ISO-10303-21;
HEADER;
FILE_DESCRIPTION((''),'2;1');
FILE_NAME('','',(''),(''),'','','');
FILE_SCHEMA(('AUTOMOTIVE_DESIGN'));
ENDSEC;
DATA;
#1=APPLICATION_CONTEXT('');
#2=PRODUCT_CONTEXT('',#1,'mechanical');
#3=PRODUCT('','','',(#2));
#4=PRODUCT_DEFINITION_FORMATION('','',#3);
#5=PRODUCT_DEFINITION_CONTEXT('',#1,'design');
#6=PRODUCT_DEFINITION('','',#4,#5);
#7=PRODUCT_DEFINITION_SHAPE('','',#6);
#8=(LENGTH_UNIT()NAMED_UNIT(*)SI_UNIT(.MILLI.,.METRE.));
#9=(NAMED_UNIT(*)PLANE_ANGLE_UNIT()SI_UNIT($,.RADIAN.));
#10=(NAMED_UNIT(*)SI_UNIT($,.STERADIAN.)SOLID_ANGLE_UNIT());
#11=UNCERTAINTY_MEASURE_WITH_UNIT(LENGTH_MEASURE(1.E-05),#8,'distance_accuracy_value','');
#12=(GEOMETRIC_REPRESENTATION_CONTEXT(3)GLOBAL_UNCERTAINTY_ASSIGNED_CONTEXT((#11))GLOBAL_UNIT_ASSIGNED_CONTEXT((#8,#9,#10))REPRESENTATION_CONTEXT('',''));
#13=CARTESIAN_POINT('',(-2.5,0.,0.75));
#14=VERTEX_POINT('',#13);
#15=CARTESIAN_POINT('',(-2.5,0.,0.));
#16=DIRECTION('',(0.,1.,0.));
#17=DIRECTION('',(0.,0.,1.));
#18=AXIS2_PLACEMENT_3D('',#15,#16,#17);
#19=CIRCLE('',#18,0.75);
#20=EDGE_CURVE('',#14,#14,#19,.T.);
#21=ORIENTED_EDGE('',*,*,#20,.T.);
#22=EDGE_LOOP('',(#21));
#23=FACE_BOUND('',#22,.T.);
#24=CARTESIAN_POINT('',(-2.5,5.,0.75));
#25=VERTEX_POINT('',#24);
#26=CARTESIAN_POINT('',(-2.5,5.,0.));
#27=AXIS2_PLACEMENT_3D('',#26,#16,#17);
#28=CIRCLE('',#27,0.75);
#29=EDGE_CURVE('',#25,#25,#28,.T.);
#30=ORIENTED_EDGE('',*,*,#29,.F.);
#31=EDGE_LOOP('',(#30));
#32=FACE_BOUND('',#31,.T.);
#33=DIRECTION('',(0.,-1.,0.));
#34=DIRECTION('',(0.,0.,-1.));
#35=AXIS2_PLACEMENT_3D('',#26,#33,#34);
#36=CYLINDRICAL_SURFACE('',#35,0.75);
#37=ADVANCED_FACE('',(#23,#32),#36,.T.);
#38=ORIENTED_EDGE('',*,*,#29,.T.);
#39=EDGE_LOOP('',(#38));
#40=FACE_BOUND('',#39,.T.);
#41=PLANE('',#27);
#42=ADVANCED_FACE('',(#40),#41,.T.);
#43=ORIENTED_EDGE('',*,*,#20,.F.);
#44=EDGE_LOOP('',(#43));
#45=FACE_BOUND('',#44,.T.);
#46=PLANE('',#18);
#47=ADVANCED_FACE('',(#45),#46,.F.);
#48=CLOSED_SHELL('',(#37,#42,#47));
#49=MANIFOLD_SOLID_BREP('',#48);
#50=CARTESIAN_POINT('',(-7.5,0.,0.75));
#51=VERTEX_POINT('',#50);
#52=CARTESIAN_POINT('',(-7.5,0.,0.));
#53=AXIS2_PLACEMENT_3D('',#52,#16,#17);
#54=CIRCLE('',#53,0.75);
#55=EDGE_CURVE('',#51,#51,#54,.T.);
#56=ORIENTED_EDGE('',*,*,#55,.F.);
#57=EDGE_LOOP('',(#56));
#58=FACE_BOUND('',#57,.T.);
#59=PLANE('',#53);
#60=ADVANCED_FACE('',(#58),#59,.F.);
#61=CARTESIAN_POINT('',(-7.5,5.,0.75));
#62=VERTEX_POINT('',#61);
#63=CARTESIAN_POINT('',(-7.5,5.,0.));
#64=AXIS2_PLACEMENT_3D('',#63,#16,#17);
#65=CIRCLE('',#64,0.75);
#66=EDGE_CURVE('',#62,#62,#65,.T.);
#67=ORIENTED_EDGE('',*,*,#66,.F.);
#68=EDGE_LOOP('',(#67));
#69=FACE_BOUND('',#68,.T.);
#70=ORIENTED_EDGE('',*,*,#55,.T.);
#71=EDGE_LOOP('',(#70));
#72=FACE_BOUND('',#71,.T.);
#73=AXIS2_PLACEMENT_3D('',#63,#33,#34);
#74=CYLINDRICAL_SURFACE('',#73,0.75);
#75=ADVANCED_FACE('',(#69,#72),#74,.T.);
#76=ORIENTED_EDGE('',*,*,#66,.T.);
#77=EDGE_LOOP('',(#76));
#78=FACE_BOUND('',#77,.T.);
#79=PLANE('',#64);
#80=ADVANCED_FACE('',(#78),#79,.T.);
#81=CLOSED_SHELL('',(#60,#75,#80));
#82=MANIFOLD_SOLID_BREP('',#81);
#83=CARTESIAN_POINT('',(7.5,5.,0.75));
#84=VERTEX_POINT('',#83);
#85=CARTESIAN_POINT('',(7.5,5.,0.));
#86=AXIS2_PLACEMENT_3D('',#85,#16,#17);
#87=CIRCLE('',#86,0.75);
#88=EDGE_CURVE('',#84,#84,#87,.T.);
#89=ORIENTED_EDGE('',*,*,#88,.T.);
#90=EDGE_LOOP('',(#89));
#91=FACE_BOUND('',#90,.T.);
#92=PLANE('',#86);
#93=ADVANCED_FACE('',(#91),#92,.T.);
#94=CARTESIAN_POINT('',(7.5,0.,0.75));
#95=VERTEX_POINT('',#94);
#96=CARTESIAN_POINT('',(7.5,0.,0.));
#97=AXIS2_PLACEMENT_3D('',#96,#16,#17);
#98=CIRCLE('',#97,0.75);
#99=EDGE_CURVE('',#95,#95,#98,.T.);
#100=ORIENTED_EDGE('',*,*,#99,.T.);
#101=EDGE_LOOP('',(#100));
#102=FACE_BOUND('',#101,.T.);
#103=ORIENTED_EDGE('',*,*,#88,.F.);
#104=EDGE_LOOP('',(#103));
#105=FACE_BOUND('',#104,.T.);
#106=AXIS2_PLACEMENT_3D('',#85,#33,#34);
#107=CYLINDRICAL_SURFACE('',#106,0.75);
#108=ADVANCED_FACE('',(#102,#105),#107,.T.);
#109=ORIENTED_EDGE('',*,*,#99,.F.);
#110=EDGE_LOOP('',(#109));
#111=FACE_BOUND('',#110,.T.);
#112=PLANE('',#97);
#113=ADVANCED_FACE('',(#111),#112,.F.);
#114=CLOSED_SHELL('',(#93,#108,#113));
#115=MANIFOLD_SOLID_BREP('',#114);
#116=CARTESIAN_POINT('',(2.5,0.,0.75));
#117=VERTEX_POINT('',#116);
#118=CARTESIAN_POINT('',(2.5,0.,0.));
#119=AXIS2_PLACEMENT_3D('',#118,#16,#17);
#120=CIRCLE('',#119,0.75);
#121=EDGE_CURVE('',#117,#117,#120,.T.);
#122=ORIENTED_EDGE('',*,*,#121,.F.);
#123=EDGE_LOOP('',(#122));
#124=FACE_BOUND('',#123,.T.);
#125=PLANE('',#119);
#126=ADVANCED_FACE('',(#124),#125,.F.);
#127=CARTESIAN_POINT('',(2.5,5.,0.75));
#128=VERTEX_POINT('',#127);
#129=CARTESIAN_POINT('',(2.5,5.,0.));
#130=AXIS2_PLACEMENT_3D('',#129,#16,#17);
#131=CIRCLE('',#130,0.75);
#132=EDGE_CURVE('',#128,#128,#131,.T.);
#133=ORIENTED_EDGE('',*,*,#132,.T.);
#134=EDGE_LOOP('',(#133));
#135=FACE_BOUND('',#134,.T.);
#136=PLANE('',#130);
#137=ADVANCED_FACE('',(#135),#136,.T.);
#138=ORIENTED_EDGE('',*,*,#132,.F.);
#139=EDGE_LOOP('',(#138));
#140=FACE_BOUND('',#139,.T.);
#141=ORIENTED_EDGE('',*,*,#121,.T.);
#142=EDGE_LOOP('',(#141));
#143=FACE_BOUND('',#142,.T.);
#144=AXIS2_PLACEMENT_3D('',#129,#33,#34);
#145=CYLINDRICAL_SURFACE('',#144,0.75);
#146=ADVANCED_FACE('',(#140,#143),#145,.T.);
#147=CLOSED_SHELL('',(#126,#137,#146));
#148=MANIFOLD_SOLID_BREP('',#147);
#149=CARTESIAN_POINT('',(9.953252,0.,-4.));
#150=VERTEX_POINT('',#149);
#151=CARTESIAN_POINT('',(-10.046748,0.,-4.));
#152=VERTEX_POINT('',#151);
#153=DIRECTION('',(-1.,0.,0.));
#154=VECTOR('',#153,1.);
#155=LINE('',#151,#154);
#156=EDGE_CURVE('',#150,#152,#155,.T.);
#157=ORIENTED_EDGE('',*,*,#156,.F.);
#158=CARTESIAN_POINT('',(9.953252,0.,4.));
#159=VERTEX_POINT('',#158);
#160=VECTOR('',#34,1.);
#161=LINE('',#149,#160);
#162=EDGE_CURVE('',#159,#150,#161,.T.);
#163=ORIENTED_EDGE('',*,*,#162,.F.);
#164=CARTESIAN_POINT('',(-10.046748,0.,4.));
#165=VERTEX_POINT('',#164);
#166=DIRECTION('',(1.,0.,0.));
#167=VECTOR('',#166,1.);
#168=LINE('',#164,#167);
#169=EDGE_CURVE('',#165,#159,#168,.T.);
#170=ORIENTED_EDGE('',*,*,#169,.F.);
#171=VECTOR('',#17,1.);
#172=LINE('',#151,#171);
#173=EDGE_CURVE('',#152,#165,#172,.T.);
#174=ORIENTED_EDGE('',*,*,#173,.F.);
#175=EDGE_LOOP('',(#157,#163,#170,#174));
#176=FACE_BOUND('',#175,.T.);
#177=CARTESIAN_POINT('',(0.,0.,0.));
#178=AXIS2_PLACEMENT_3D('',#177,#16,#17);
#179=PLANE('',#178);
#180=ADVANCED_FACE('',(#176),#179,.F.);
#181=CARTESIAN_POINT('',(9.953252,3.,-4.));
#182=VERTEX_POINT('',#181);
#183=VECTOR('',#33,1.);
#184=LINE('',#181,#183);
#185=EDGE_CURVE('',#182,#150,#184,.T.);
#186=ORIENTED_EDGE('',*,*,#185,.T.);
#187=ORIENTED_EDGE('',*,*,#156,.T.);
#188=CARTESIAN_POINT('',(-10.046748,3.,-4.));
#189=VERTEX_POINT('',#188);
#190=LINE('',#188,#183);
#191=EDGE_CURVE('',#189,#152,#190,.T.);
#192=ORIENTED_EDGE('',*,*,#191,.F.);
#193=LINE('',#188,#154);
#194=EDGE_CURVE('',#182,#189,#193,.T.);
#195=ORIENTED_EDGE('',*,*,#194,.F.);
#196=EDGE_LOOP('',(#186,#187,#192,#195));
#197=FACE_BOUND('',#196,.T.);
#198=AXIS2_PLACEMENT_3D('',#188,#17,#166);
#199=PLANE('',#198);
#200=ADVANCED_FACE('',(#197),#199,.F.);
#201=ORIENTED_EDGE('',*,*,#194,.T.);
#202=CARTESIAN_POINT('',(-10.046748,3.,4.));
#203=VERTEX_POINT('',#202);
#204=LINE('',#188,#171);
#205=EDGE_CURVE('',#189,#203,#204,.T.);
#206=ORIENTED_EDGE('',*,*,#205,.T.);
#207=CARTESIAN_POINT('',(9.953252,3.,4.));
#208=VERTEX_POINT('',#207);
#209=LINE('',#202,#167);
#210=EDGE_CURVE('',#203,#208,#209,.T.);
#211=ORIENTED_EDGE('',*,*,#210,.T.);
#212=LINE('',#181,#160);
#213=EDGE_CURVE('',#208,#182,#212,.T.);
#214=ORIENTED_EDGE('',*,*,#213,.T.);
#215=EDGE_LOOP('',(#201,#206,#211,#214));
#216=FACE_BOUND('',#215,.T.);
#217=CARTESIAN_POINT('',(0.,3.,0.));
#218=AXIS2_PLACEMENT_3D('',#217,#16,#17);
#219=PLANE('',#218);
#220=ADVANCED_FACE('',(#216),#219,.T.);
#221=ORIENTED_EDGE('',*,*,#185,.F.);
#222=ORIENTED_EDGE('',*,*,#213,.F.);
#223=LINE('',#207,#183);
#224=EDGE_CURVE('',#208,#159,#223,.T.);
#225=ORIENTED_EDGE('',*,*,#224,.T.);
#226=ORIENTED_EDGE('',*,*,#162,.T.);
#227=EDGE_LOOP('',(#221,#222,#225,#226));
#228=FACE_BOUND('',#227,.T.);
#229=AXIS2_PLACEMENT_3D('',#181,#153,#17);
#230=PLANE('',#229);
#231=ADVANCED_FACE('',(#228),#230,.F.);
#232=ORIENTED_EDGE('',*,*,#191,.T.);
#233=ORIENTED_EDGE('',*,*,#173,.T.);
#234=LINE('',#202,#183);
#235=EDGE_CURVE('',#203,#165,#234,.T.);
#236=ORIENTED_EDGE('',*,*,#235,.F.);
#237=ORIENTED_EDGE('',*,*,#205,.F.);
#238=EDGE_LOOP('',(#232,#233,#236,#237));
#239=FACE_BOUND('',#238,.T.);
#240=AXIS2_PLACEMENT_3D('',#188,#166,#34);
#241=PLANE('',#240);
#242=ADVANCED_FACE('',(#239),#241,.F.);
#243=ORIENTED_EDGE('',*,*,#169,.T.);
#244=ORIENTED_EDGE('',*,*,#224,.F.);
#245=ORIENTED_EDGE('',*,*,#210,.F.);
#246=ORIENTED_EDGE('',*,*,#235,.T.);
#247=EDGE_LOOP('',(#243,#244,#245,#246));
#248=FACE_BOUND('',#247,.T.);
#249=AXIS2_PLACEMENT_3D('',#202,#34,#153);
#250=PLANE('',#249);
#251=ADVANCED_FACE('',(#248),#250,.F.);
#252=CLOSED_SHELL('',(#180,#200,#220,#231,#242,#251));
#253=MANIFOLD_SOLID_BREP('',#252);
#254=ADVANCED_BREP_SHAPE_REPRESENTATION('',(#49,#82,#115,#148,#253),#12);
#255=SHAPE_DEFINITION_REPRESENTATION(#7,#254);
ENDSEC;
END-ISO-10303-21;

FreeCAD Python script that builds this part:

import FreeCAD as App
import Part
import Sketcher


def add_polygon(sketch, points):
    """Adds a closed chain of lines whose ends are joined by coincident constraints."""
    first, n = sketch.GeometryCount, len(points)
    for a, b in zip(points, points[1:] + points[:1]):
        sketch.addGeometry(Part.LineSegment(App.Vector(*a, 0), App.Vector(*b, 0)), False)
    for i in range(n):
        sketch.addConstraint(Sketcher.Constraint("Coincident", first + i, 2, first + (i + 1) % n, 1))

doc = App.newDocument("Part")
params = doc.addObject("Spreadsheet::Sheet", "Params")
for row, (alias, value) in enumerate([
    ("sketch1_width", "20 mm"),
    ("sketch1_height", "8 mm"),
    ("pad1_length", "3 mm"),
    ("sketch2_diameter", "1.5 mm"),
    ("pad2_length", "5 mm"),
    ("sketch3_diameter", "1.5 mm"),
    ("pad3_length", "5 mm"),
    ("sketch4_diameter", "1.5 mm"),
    ("pad4_length", "5 mm"),
    ("sketch5_diameter", "1.5 mm"),
    ("pad5_length", "5 mm"),
], start=1):
    params.set(f"A{row}", alias)
    params.set(f"B{row}", "=" + value)
    params.setAlias(f"B{row}", alias)

body = doc.addObject("PartDesign::Body", "Body")

# Sketch on XZ plane
sketch1 = doc.addObject("Sketcher::SketchObject", "Sketch")
body.addObject(sketch1)
sketch1.AttachmentSupport = (doc.XZ_Plane, [""])
sketch1.MapMode = "FlatFace"
add_polygon(sketch1, [(-10.046748, -4), (-10.046748, 4), (9.953252, 4), (9.953252, -4)])  # lines 0-3
sketch1.addConstraint(Sketcher.Constraint("Vertical", 0))
sketch1.addConstraint(Sketcher.Constraint("Horizontal", 1))
sketch1.addConstraint(Sketcher.Constraint("Vertical", 2))
sketch1.addConstraint(Sketcher.Constraint("Horizontal", 3))
sketch1.addConstraint(Sketcher.Constraint("DistanceX", 1, 1, 1, 2, 20.0))
sketch1.addConstraint(Sketcher.Constraint("DistanceY", 0, 1, 0, 2, 8.0))
sketch1.addConstraint(Sketcher.Constraint("DistanceY", -1, 1, 0, 2, 4.0))
sketch1.addConstraint(Sketcher.Constraint("DistanceX", 0, 2, -1, 1, 10.046748))
sketch1.setExpression("Constraints[8]", "Params.sketch1_width")
sketch1.setExpression("Constraints[9]", "Params.sketch1_height")
pad1 = doc.addObject("PartDesign::Pad", "Pad")
body.addObject(pad1)
pad1.Profile = sketch1
pad1.setExpression("Length", "Params.pad1_length")
pad1.Reversed = True
body2 = doc.addObject("PartDesign::Body", "Body001")

# Sketch on XZ plane
sketch2 = doc.addObject("Sketcher::SketchObject", "Sketch001")
body2.addObject(sketch2)
sketch2.AttachmentSupport = (doc.getObject("XZ_Plane001"), [""])
sketch2.MapMode = "FlatFace"
sketch2.addGeometry(Part.Circle(App.Vector(-7.5, 0, 0), App.Vector(0, 0, 1), 0.75), False)
sketch2.addConstraint(Sketcher.Constraint("PointOnObject", 0, 3, -1))
sketch2.addConstraint(Sketcher.Constraint("Diameter", 0, 1.5))
sketch2.addConstraint(Sketcher.Constraint("DistanceX", 0, 3, -1, 1, 7.5))
sketch2.setExpression("Constraints[1]", "Params.sketch2_diameter")
pad2 = doc.addObject("PartDesign::Pad", "Pad001")
body2.addObject(pad2)
pad2.Profile = sketch2
pad2.setExpression("Length", "Params.pad2_length")
pad2.Reversed = True
body3 = doc.addObject("PartDesign::Body", "Body002")

# Sketch on XZ plane
sketch3 = doc.addObject("Sketcher::SketchObject", "Sketch002")
body3.addObject(sketch3)
sketch3.AttachmentSupport = (doc.getObject("XZ_Plane002"), [""])
sketch3.MapMode = "FlatFace"
sketch3.addGeometry(Part.Circle(App.Vector(-2.5, 0, 0), App.Vector(0, 0, 1), 0.75), False)
sketch3.addConstraint(Sketcher.Constraint("PointOnObject", 0, 3, -1))
sketch3.addConstraint(Sketcher.Constraint("Diameter", 0, 1.5))
sketch3.addConstraint(Sketcher.Constraint("DistanceX", 0, 3, -1, 1, 2.5))
sketch3.setExpression("Constraints[1]", "Params.sketch3_diameter")
pad3 = doc.addObject("PartDesign::Pad", "Pad002")
body3.addObject(pad3)
pad3.Profile = sketch3
pad3.setExpression("Length", "Params.pad3_length")
pad3.Reversed = True
body4 = doc.addObject("PartDesign::Body", "Body003")

# Sketch on XZ plane
sketch4 = doc.addObject("Sketcher::SketchObject", "Sketch003")
body4.addObject(sketch4)
sketch4.AttachmentSupport = (doc.getObject("XZ_Plane003"), [""])
sketch4.MapMode = "FlatFace"
sketch4.addGeometry(Part.Circle(App.Vector(2.5, 0, 0), App.Vector(0, 0, 1), 0.75), False)
sketch4.addConstraint(Sketcher.Constraint("PointOnObject", 0, 3, -1))
sketch4.addConstraint(Sketcher.Constraint("Diameter", 0, 1.5))
sketch4.addConstraint(Sketcher.Constraint("DistanceX", -1, 1, 0, 3, 2.5))
sketch4.setExpression("Constraints[1]", "Params.sketch4_diameter")
pad4 = doc.addObject("PartDesign::Pad", "Pad003")
body4.addObject(pad4)
pad4.Profile = sketch4
pad4.setExpression("Length", "Params.pad4_length")
pad4.Reversed = True
body5 = doc.addObject("PartDesign::Body", "Body004")

# Sketch on XZ plane
sketch5 = doc.addObject("Sketcher::SketchObject", "Sketch004")
body5.addObject(sketch5)
sketch5.AttachmentSupport = (doc.getObject("XZ_Plane004"), [""])
sketch5.MapMode = "FlatFace"
sketch5.addGeometry(Part.Circle(App.Vector(7.5, 0, 0), App.Vector(0, 0, 1), 0.75), False)
sketch5.addConstraint(Sketcher.Constraint("PointOnObject", 0, 3, -1))
sketch5.addConstraint(Sketcher.Constraint("Diameter", 0, 1.5))
sketch5.addConstraint(Sketcher.Constraint("DistanceX", -1, 1, 0, 3, 7.5))
sketch5.setExpression("Constraints[1]", "Params.sketch5_diameter")
pad5 = doc.addObject("PartDesign::Pad", "Pad004")
body5.addObject(pad5)
pad5.Profile = sketch5
pad5.setExpression("Length", "Params.pad5_length")
pad5.Reversed = True

doc.recompute()
